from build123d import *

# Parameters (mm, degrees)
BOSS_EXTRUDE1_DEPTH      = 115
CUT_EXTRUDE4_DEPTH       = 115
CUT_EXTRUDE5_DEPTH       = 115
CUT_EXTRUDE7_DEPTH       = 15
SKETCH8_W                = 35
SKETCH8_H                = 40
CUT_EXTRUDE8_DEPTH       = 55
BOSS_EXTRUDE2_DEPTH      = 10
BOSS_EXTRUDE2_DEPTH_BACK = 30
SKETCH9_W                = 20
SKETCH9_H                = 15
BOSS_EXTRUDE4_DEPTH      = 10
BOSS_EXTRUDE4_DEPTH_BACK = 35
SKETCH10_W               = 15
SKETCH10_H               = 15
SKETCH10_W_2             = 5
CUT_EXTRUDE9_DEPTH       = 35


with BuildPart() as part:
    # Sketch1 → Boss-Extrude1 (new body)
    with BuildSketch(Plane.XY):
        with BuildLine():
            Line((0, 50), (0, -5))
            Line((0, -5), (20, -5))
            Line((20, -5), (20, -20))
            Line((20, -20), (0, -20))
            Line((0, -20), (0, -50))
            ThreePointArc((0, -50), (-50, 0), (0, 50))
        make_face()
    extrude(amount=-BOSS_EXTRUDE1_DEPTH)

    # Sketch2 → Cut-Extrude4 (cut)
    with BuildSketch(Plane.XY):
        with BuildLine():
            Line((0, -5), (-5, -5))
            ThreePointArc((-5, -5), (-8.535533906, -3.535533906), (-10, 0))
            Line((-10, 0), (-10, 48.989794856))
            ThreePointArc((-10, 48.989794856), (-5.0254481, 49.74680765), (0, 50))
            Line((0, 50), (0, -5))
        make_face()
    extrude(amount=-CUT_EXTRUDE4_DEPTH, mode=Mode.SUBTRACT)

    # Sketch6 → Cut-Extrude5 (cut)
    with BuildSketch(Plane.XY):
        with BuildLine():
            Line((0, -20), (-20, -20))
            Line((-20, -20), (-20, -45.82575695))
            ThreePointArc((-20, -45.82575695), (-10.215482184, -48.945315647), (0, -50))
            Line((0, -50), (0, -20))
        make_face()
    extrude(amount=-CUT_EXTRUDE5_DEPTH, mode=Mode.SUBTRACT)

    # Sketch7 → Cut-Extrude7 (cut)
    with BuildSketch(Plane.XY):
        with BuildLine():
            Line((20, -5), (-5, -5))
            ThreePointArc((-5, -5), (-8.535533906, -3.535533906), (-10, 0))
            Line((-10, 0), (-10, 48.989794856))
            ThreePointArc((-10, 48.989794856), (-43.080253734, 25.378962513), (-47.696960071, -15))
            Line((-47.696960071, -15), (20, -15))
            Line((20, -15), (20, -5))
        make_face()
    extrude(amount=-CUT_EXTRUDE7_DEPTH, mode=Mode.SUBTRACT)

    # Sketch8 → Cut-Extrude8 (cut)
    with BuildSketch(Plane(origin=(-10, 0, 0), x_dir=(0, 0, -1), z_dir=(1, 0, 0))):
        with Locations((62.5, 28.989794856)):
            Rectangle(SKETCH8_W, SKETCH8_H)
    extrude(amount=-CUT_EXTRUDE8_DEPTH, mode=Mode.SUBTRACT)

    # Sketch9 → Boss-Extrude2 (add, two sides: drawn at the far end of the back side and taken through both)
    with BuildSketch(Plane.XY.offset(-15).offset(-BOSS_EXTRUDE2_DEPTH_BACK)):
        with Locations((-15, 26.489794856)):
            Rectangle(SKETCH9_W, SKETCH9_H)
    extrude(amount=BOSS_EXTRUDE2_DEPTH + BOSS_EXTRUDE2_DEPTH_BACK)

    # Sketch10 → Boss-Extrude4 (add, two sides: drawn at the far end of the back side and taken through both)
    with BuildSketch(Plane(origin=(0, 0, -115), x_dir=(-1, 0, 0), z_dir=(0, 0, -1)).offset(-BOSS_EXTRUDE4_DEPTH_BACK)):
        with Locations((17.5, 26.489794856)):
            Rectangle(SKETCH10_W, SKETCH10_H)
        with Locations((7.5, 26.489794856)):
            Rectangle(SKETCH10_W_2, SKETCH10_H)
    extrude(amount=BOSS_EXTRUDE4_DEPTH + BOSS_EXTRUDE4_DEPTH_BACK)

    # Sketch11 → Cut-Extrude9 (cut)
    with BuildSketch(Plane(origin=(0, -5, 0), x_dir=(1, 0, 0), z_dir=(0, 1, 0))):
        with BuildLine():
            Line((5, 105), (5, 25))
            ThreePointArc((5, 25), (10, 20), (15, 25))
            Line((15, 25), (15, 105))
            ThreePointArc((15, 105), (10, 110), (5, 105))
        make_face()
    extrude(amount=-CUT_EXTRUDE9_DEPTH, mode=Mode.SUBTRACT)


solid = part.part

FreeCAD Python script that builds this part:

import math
import FreeCAD as App
import Part
import Sketcher
from FreeCAD import Vector


def add_polygon(sketch, points):
    """Adds a closed chain of lines whose ends are joined by coincident constraints."""
    first, n = sketch.GeometryCount, len(points)
    for a, b in zip(points, points[1:] + points[:1]):
        sketch.addGeometry(Part.LineSegment(App.Vector(*a, 0), App.Vector(*b, 0)), False)
    for i in range(n):
        sketch.addConstraint(Sketcher.Constraint("Coincident", first + i, 2, first + (i + 1) % n, 1))

doc = App.newDocument("Part")
params = doc.addObject("Spreadsheet::Sheet", "Params")
for row, (alias, value) in enumerate([
    ("sketch1_radius", "50 mm"),
    ("sketch1_width", "20 mm"),
    ("sketch1_height", "55 mm"),
    ("sketch1_height2", "30 mm"),
    ("pad1_length", "115 mm"),
    ("sketch2_radius", "50 mm"),
    ("sketch2_radius2", "5 mm"),
    ("sketch2_width", "5 mm"),
    ("pocket1_length", "115 mm"),
    ("sketch3_radius", "50 mm"),
    ("sketch3_width", "20 mm"),
    ("sketch3_height", "30 mm"),
    ("pocket2_length", "115 mm"),
    ("sketch4_radius", "5 mm"),
    ("sketch4_radius2", "50 mm"),
    ("sketch4_width", "25 mm"),
    ("sketch4_height", "10 mm"),
    ("pocket3_length", "15 mm"),
    ("sketch5_width", "40 mm"),
    ("sketch5_height", "35 mm"),
    ("pocket4_length", "55 mm"),
    ("sketch6_width", "20 mm"),
    ("sketch6_height", "15 mm"),
    ("pad2_length", "10 mm"),
    ("pad2_length2", "30 mm"),
    ("sketch7_width", "20 mm"),
    ("sketch7_height", "15 mm"),
    ("pad3_length", "10 mm"),
    ("pad3_length2", "35 mm"),
    ("sketch8_radius", "5 mm"),
    ("sketch8_height", "80 mm"),
    ("pocket5_length", "35 mm"),
], start=1):
    params.set(f"A{row}", alias)
    params.set(f"B{row}", "=" + value)
    params.setAlias(f"B{row}", alias)

body = doc.addObject("PartDesign::Body", "Body")

# Sketch on XY plane
sketch1 = doc.addObject("Sketcher::SketchObject", "Sketch")
body.addObject(sketch1)
sketch1.AttachmentSupport = (doc.XY_Plane, [""])
sketch1.MapMode = "FlatFace"
sketch1.addGeometry(Part.LineSegment(Vector(0, -5, 0), Vector(0, 50, 0)), False)
sketch1.addGeometry(Part.ArcOfCircle(Part.Circle(Vector(0, 0, 0), Vector(0, 0, 1), 50), math.radians(90), math.radians(270)), False)
sketch1.addGeometry(Part.LineSegment(Vector(0, -50, 0), Vector(0, -20, 0)), False)
sketch1.addGeometry(Part.LineSegment(Vector(0, -20, 0), Vector(20, -20, 0)), False)
sketch1.addGeometry(Part.LineSegment(Vector(20, -20, 0), Vector(20, -5, 0)), False)
sketch1.addGeometry(Part.LineSegment(Vector(20, -5, 0), Vector(0, -5, 0)), False)
sketch1.addConstraint(Sketcher.Constraint("Coincident", 0, 2, 1, 1))
sketch1.addConstraint(Sketcher.Constraint("Coincident", 1, 2, 2, 1))
sketch1.addConstraint(Sketcher.Constraint("Coincident", 2, 2, 3, 1))
sketch1.addConstraint(Sketcher.Constraint("Coincident", 3, 2, 4, 1))
sketch1.addConstraint(Sketcher.Constraint("Coincident", 4, 2, 5, 1))
sketch1.addConstraint(Sketcher.Constraint("Coincident", 5, 2, 0, 1))
sketch1.addConstraint(Sketcher.Constraint("Vertical", 0))
sketch1.addConstraint(Sketcher.Constraint("Vertical", 2))
sketch1.addConstraint(Sketcher.Constraint("Horizontal", 3))
sketch1.addConstraint(Sketcher.Constraint("Vertical", 4))
sketch1.addConstraint(Sketcher.Constraint("Horizontal", 5))
sketch1.addConstraint(Sketcher.Constraint("Coincident", 1, 3, -1, 1))
sketch1.addConstraint(Sketcher.Constraint("PointOnObject", 0, 2, -2))
sketch1.addConstraint(Sketcher.Constraint("PointOnObject", 1, 2, -2))
sketch1.addConstraint(Sketcher.Constraint("Radius", 1, 50.0))
sketch1.addConstraint(Sketcher.Constraint("DistanceX", 3, 1, 3, 2, 20.0))
sketch1.addConstraint(Sketcher.Constraint("DistanceY", 0, 1, 0, 2, 55.0))
sketch1.addConstraint(Sketcher.Constraint("DistanceY", 2, 1, 2, 2, 30.0))
sketch1.setExpression("Constraints[14]", "Params.sketch1_radius")
sketch1.setExpression("Constraints[15]", "Params.sketch1_width")
sketch1.setExpression("Constraints[16]", "Params.sketch1_height")
sketch1.setExpression("Constraints[17]", "Params.sketch1_height2")
pad1 = doc.addObject("PartDesign::Pad", "Pad")
body.addObject(pad1)
pad1.Profile = sketch1
pad1.setExpression("Length", "Params.pad1_length")
pad1.Reversed = True

# Sketch on XY plane
sketch2 = doc.addObject("Sketcher::SketchObject", "Sketch001")
body.addObject(sketch2)
sketch2.AttachmentSupport = (doc.XY_Plane, [""])
sketch2.MapMode = "FlatFace"
sketch2.addGeometry(Part.LineSegment(Vector(-5, -5, 0), Vector(0, -5, 0)), False)
sketch2.addGeometry(Part.LineSegment(Vector(0, -5, 0), Vector(0, 50, 0)), False)
sketch2.addGeometry(Part.ArcOfCircle(Part.Circle(Vector(0, 0, 0), Vector(0, 0, 1), 50), math.radians(90), math.radians(101.536959)), False)
sketch2.addGeometry(Part.LineSegment(Vector(-10, 48.989795, 0), Vector(-10, 0, 0)), False)
sketch2.addGeometry(Part.ArcOfCircle(Part.Circle(Vector(-5, 0, 0), Vector(0, 0, 1), 5), math.radians(180), math.radians(270)), False)
sketch2.addConstraint(Sketcher.Constraint("Coincident", 0, 2, 1, 1))
sketch2.addConstraint(Sketcher.Constraint("Coincident", 1, 2, 2, 1))
sketch2.addConstraint(Sketcher.Constraint("Coincident", 2, 2, 3, 1))
sketch2.addConstraint(Sketcher.Constraint("Tangent", 3, 2, 4, 1))
sketch2.addConstraint(Sketcher.Constraint("Tangent", 4, 2, 0, 1))
sketch2.addConstraint(Sketcher.Constraint("Horizontal", 0))
sketch2.addConstraint(Sketcher.Constraint("Vertical", 1))
sketch2.addConstraint(Sketcher.Constraint("Vertical", 3))
sketch2.addConstraint(Sketcher.Constraint("Coincident", 2, 3, -1, 1))
sketch2.addConstraint(Sketcher.Constraint("PointOnObject", 4, 3, -1))
sketch2.addConstraint(Sketcher.Constraint("PointOnObject", 0, 2, -2))
sketch2.addConstraint(Sketcher.Constraint("Radius", 2, 50.0))
sketch2.addConstraint(Sketcher.Constraint("Radius", 4, 5.0))
sketch2.addConstraint(Sketcher.Constraint("DistanceX", 0, 1, 0, 2, 5.0))
sketch2.setExpression("Constraints[11]", "Params.sketch2_radius")
sketch2.setExpression("Constraints[12]", "Params.sketch2_radius2")
sketch2.setExpression("Constraints[13]", "Params.sketch2_width")
pocket1 = doc.addObject("PartDesign::Pocket", "Pocket")
body.addObject(pocket1)
pocket1.Profile = sketch2
pocket1.setExpression("Length", "Params.pocket1_length")

# Sketch on XY plane
sketch3 = doc.addObject("Sketcher::SketchObject", "Sketch002")
body.addObject(sketch3)
sketch3.AttachmentSupport = (doc.XY_Plane, [""])
sketch3.MapMode = "FlatFace"
sketch3.addGeometry(Part.LineSegment(Vector(0, -20, 0), Vector(-20, -20, 0)), False)
sketch3.addGeometry(Part.LineSegment(Vector(-20, -20, 0), Vector(-20, -45.825757, 0)), False)
sketch3.addGeometry(Part.ArcOfCircle(Part.Circle(Vector(0, 0, 0), Vector(0, 0, 1), 50), math.radians(-113.578178), math.radians(-90)), False)
sketch3.addGeometry(Part.LineSegment(Vector(0, -50, 0), Vector(0, -20, 0)), False)
sketch3.addConstraint(Sketcher.Constraint("Coincident", 0, 2, 1, 1))
sketch3.addConstraint(Sketcher.Constraint("Coincident", 1, 2, 2, 1))
sketch3.addConstraint(Sketcher.Constraint("Coincident", 2, 2, 3, 1))
sketch3.addConstraint(Sketcher.Constraint("Coincident", 3, 2, 0, 1))
sketch3.addConstraint(Sketcher.Constraint("Horizontal", 0))
sketch3.addConstraint(Sketcher.Constraint("Vertical", 1))
sketch3.addConstraint(Sketcher.Constraint("Vertical", 3))
sketch3.addConstraint(Sketcher.Constraint("Coincident", 2, 3, -1, 1))
sketch3.addConstraint(Sketcher.Constraint("PointOnObject", 2, 2, -2))
sketch3.addConstraint(Sketcher.Constraint("Radius", 2, 50.0))
sketch3.addConstraint(Sketcher.Constraint("DistanceX", 0, 2, 0, 1, 20.0))
sketch3.addConstraint(Sketcher.Constraint("DistanceY", 3, 1, 3, 2, 30.0))
sketch3.setExpression("Constraints[9]", "Params.sketch3_radius")
sketch3.setExpression("Constraints[10]", "Params.sketch3_width")
sketch3.setExpression("Constraints[11]", "Params.sketch3_height")
pocket2 = doc.addObject("PartDesign::Pocket", "Pocket001")
body.addObject(pocket2)
pocket2.Profile = sketch3
pocket2.setExpression("Length", "Params.pocket2_length")

# Sketch on XY plane
sketch4 = doc.addObject("Sketcher::SketchObject", "Sketch003")
body.addObject(sketch4)
sketch4.AttachmentSupport = (doc.XY_Plane, [""])
sketch4.MapMode = "FlatFace"
sketch4.addGeometry(Part.LineSegment(Vector(20, -5, 0), Vector(-5, -5, 0)), False)
sketch4.addGeometry(Part.ArcOfCircle(Part.Circle(Vector(-5, 0, 0), Vector(0, 0, 1), 5), math.radians(180), math.radians(270)), False)
sketch4.addGeometry(Part.LineSegment(Vector(-10, 0, 0), Vector(-10, 48.989795, 0)), False)
sketch4.addGeometry(Part.ArcOfCircle(Part.Circle(Vector(0, 0, 0), Vector(0, 0, 1), 50), math.radians(101.536959), math.radians(197.457603)), False)
sketch4.addGeometry(Part.LineSegment(Vector(-47.69696, -15, 0), Vector(20, -15, 0)), False)
sketch4.addGeometry(Part.LineSegment(Vector(20, -15, 0), Vector(20, -5, 0)), False)
sketch4.addConstraint(Sketcher.Constraint("Tangent", 0, 2, 1, 2))
sketch4.addConstraint(Sketcher.Constraint("Tangent", 1, 1, 2, 1))
sketch4.addConstraint(Sketcher.Constraint("Coincident", 2, 2, 3, 1))
sketch4.addConstraint(Sketcher.Constraint("Coincident", 3, 2, 4, 1))
sketch4.addConstraint(Sketcher.Constraint("Coincident", 4, 2, 5, 1))
sketch4.addConstraint(Sketcher.Constraint("Coincident", 5, 2, 0, 1))
sketch4.addConstraint(Sketcher.Constraint("Horizontal", 0))
sketch4.addConstraint(Sketcher.Constraint("Vertical", 2))
sketch4.addConstraint(Sketcher.Constraint("Horizontal", 4))
sketch4.addConstraint(Sketcher.Constraint("Vertical", 5))
sketch4.addConstraint(Sketcher.Constraint("Coincident", 3, 3, -1, 1))
sketch4.addConstraint(Sketcher.Constraint("PointOnObject", 1, 3, -1))
sketch4.addConstraint(Sketcher.Constraint("Radius", 1, 5.0))
sketch4.addConstraint(Sketcher.Constraint("Radius", 3, 50.0))
sketch4.addConstraint(Sketcher.Constraint("DistanceX", 0, 2, 0, 1, 25.0))
sketch4.addConstraint(Sketcher.Constraint("DistanceY", 5, 1, 5, 2, 10.0))
sketch4.addConstraint(Sketcher.Constraint("DistanceX", 1, 3, -1, 1, 5.0))
sketch4.setExpression("Constraints[12]", "Params.sketch4_radius")
sketch4.setExpression("Constraints[13]", "Params.sketch4_radius2")
sketch4.setExpression("Constraints[14]", "Params.sketch4_width")
sketch4.setExpression("Constraints[15]", "Params.sketch4_height")
pocket3 = doc.addObject("PartDesign::Pocket", "Pocket002")
body.addObject(pocket3)
pocket3.Profile = sketch4
pocket3.setExpression("Length", "Params.pocket3_length")

# Sketch on YZ plane
sketch5 = doc.addObject("Sketcher::SketchObject", "Sketch004")
body.addObject(sketch5)
sketch5.AttachmentSupport = (doc.YZ_Plane, [""])
sketch5.MapMode = "FlatFace"
sketch5.AttachmentOffset = App.Placement(Vector(0, 0, -10), App.Rotation())
add_polygon(sketch5, [(48.989795, -45), (8.989795, -45), (8.989795, -80), (48.989795, -80)])  # lines 0-3
sketch5.addConstraint(Sketcher.Constraint("Horizontal", 0))
sketch5.addConstraint(Sketcher.Constraint("Vertical", 1))
sketch5.addConstraint(Sketcher.Constraint("Horizontal", 2))
sketch5.addConstraint(Sketcher.Constraint("Vertical", 3))
sketch5.addConstraint(Sketcher.Constraint("DistanceX", 0, 2, 0, 1, 40.0))
sketch5.addConstraint(Sketcher.Constraint("DistanceY", 1, 2, 1, 1, 35.0))
sketch5.addConstraint(Sketcher.Constraint("DistanceY", 0, 2, -1, 1, 45.0))
sketch5.addConstraint(Sketcher.Constraint("DistanceX", -1, 1, 0, 2, 8.989795))
sketch5.setExpression("Constraints[8]", "Params.sketch5_width")
sketch5.setExpression("Constraints[9]", "Params.sketch5_height")
pocket4 = doc.addObject("PartDesign::Pocket", "Pocket003")
body.addObject(pocket4)
pocket4.Profile = sketch5
pocket4.setExpression("Length", "Params.pocket4_length")

# Sketch on XY plane
sketch6 = doc.addObject("Sketcher::SketchObject", "Sketch005")
body.addObject(sketch6)
sketch6.AttachmentSupport = (doc.XY_Plane, [""])
sketch6.MapMode = "FlatFace"
sketch6.AttachmentOffset = App.Placement(Vector(0, 0, -15), App.Rotation())
add_polygon(sketch6, [(-25, 33.989795), (-25, 18.989795), (-5, 18.989795), (-5, 33.989795)])  # lines 0-3
sketch6.addConstraint(Sketcher.Constraint("Vertical", 0))
sketch6.addConstraint(Sketcher.Constraint("Horizontal", 1))
sketch6.addConstraint(Sketcher.Constraint("Vertical", 2))
sketch6.addConstraint(Sketcher.Constraint("Horizontal", 3))
sketch6.addConstraint(Sketcher.Constraint("DistanceX", 1, 1, 1, 2, 20.0))
sketch6.addConstraint(Sketcher.Constraint("DistanceY", 0, 2, 0, 1, 15.0))
sketch6.addConstraint(Sketcher.Constraint("DistanceX", 0, 2, -1, 1, 25.0))
sketch6.addConstraint(Sketcher.Constraint("DistanceY", -1, 1, 0, 2, 18.989795))
sketch6.setExpression("Constraints[8]", "Params.sketch6_width")
sketch6.setExpression("Constraints[9]", "Params.sketch6_height")
pad2 = doc.addObject("PartDesign::Pad", "Pad001")
body.addObject(pad2)
pad2.Profile = sketch6
pad2.Type = "TwoLengths"
pad2.setExpression("Length", "Params.pad2_length")
pad2.setExpression("Length2", "Params.pad2_length2")

# Sketch on XY plane
sketch7 = doc.addObject("Sketcher::SketchObject", "Sketch006")
body.addObject(sketch7)
sketch7.AttachmentSupport = (doc.XY_Plane, [""])
sketch7.MapMode = "FlatFace"
sketch7.AttachmentOffset = App.Placement(Vector(0, 0, -115), App.Rotation())
add_polygon(sketch7, [(-25, 18.989795), (-25, 33.989795), (-5, 33.989795), (-5, 18.989795)])  # lines 0-3
sketch7.addConstraint(Sketcher.Constraint("Vertical", 0))
sketch7.addConstraint(Sketcher.Constraint("Horizontal", 1))
sketch7.addConstraint(Sketcher.Constraint("Vertical", 2))
sketch7.addConstraint(Sketcher.Constraint("Horizontal", 3))
sketch7.addConstraint(Sketcher.Constraint("DistanceX", 1, 1, 1, 2, 20.0))
sketch7.addConstraint(Sketcher.Constraint("DistanceY", 0, 1, 0, 2, 15.0))
sketch7.addConstraint(Sketcher.Constraint("DistanceX", 0, 2, -1, 1, 25.0))
sketch7.addConstraint(Sketcher.Constraint("DistanceY", -1, 1, 0, 2, 33.989795))
sketch7.setExpression("Constraints[8]", "Params.sketch7_width")
sketch7.setExpression("Constraints[9]", "Params.sketch7_height")
pad3 = doc.addObject("PartDesign::Pad", "Pad002")
body.addObject(pad3)
pad3.Profile = sketch7
pad3.Type = "TwoLengths"
pad3.setExpression("Length", "Params.pad3_length")
pad3.setExpression("Length2", "Params.pad3_length2")
pad3.Reversed = True

# Sketch on XZ plane
sketch8 = doc.addObject("Sketcher::SketchObject", "Sketch007")
body.addObject(sketch8)
sketch8.AttachmentSupport = (doc.XZ_Plane, [""])
sketch8.MapMode = "FlatFace"
sketch8.AttachmentOffset = App.Placement(Vector(0, 0, 5), App.Rotation())
sketch8.addGeometry(Part.LineSegment(Vector(5, -105, 0), Vector(5, -25, 0)), False)
sketch8.addGeometry(Part.ArcOfCircle(Part.Circle(Vector(10, -25, 0), Vector(0, 0, 1), 5), math.radians(0), math.radians(180)), False)
sketch8.addGeometry(Part.LineSegment(Vector(15, -25, 0), Vector(15, -105, 0)), False)
sketch8.addGeometry(Part.ArcOfCircle(Part.Circle(Vector(10, -105, 0), Vector(0, 0, 1), 5), math.radians(180), math.radians(360)), False)
sketch8.addConstraint(Sketcher.Constraint("Tangent", 0, 2, 1, 2))
sketch8.addConstraint(Sketcher.Constraint("Tangent", 1, 1, 2, 1))
sketch8.addConstraint(Sketcher.Constraint("Tangent", 2, 2, 3, 2))
sketch8.addConstraint(Sketcher.Constraint("Tangent", 3, 1, 0, 1))
sketch8.addConstraint(Sketcher.Constraint("Vertical", 0))
sketch8.addConstraint(Sketcher.Constraint("Vertical", 2))
sketch8.addConstraint(Sketcher.Constraint("Radius", 1, 5.0))
sketch8.addConstraint(Sketcher.Constraint("DistanceY", 0, 1, 0, 2, 80.0))
sketch8.addConstraint(Sketcher.Constraint("DistanceX", -1, 1, 1, 3, 10.0))
sketch8.addConstraint(Sketcher.Constraint("DistanceY", 1, 3, -1, 1, 25.0))
sketch8.setExpression("Constraints[6]", "Params.sketch8_radius")
sketch8.setExpression("Constraints[7]", "Params.sketch8_height")
pocket5 = doc.addObject("PartDesign::Pocket", "Pocket004")
body.addObject(pocket5)
pocket5.Profile = sketch8
pocket5.setExpression("Length", "Params.pocket5_length")
pocket5.Reversed = True

doc.recompute()
